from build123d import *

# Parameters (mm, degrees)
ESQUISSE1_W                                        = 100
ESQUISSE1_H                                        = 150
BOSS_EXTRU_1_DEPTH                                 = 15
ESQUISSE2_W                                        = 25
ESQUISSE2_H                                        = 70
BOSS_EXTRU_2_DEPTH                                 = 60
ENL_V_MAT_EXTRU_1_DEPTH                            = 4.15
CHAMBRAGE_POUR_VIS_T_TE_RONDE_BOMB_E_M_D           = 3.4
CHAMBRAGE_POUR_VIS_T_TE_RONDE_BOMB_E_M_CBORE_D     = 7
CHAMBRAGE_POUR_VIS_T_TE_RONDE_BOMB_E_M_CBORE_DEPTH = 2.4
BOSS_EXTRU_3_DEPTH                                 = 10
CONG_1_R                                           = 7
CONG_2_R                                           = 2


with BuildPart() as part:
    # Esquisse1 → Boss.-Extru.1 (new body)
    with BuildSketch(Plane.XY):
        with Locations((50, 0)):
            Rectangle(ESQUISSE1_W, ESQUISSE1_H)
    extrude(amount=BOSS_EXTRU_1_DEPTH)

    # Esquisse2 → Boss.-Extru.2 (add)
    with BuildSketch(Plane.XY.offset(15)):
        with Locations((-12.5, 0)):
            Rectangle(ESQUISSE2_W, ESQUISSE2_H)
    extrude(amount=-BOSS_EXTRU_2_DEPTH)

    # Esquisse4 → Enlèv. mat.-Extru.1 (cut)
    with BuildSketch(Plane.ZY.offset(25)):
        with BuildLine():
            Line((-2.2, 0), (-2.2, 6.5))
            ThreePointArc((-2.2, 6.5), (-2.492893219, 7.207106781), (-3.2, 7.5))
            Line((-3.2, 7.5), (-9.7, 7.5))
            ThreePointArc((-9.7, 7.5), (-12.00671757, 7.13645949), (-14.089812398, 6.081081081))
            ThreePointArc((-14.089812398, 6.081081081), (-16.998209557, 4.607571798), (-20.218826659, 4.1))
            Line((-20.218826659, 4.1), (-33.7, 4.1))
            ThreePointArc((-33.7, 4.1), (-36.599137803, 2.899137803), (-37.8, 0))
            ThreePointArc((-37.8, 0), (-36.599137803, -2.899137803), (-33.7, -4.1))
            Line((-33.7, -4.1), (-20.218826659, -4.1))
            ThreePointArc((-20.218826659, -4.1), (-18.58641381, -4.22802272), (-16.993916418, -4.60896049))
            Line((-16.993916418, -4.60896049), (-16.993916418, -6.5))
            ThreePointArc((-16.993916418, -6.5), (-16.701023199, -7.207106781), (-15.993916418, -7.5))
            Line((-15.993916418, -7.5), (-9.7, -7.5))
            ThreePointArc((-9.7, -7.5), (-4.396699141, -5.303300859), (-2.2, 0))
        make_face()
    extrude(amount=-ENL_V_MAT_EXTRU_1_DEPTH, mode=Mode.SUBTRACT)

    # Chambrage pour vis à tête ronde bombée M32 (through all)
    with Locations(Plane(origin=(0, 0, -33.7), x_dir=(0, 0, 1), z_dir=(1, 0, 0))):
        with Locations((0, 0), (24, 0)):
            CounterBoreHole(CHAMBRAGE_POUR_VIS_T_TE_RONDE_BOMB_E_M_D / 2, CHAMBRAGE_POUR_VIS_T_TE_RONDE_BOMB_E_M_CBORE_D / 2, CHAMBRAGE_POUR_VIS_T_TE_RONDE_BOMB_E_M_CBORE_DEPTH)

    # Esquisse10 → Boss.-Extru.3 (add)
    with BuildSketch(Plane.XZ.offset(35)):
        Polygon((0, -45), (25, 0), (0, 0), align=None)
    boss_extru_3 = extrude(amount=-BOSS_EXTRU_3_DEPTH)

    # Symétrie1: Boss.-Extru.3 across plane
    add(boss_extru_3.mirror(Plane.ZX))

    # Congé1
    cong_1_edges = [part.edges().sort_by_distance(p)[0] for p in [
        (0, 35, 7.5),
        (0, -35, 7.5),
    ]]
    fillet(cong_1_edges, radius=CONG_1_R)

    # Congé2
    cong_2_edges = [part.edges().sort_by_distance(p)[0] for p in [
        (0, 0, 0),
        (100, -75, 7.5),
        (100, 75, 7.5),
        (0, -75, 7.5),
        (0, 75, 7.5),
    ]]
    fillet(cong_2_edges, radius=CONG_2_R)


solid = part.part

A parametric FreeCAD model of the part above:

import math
import FreeCAD as App
import Part
import Sketcher


def edges_at(feature, points):
    """Names of the edges that pass closest to the given points."""
    edges = feature.Shape.Edges
    near = lambda p: min(range(len(edges)), key=lambda i: edges[i].distToShape(Part.Vertex(*p))[0])
    return sorted({f"Edge{near(p) + 1}" for p in points})

doc = App.newDocument("Part")
body = doc.addObject("PartDesign::Body", "Body")

# Sketch on XY plane
sketch1 = body.newObject("Sketcher::SketchObject", "Sketch")
sketch1.AttachmentSupport = (doc.getObject("XY_Plane"), [""])
sketch1.MapMode = "FlatFace"
sketch1.addGeometry([
    Part.LineSegment(App.Vector(0, 75, 0), App.Vector(0, -75, 0)),
    Part.LineSegment(App.Vector(0, -75, 0), App.Vector(100, -75, 0)),
    Part.LineSegment(App.Vector(100, -75, 0), App.Vector(100, 75, 0)),
    Part.LineSegment(App.Vector(100, 75, 0), App.Vector(0, 75, 0)),
], False)
sketch1.addConstraint([
    Sketcher.Constraint("Coincident", 0, 2, 1, 1),
    Sketcher.Constraint("Coincident", 1, 2, 2, 1),
    Sketcher.Constraint("Coincident", 2, 2, 3, 1),
    Sketcher.Constraint("Coincident", 3, 2, 0, 1),
    Sketcher.Constraint("Vertical", 0),
    Sketcher.Constraint("Horizontal", 1),
    Sketcher.Constraint("Vertical", 2),
    Sketcher.Constraint("Horizontal", 3),
    Sketcher.Constraint("Symmetric", 0, 2, 3, 2, -1, 1),
    Sketcher.Constraint("DistanceX", 1, 1, 1, 2, 100.0),
    Sketcher.Constraint("DistanceY", 0, 2, 0, 1, 150.0),
])
pad1 = body.newObject("PartDesign::Pad", "Pad")
pad1.Profile = sketch1
pad1.Length = 15

# Sketch on XY plane
sketch2 = body.newObject("Sketcher::SketchObject", "Sketch001")
sketch2.AttachmentSupport = (doc.getObject("XY_Plane"), [""])
sketch2.MapMode = "FlatFace"
sketch2.AttachmentOffset = App.Placement(App.Vector(0, 0, 15), App.Rotation())
sketch2.addGeometry([
    Part.LineSegment(App.Vector(-25, 35, 0), App.Vector(-25, -35, 0)),
    Part.LineSegment(App.Vector(-25, -35, 0), App.Vector(0, -35, 0)),
    Part.LineSegment(App.Vector(0, -35, 0), App.Vector(0, 35, 0)),
    Part.LineSegment(App.Vector(0, 35, 0), App.Vector(-25, 35, 0)),
], False)
sketch2.addConstraint([
    Sketcher.Constraint("Coincident", 0, 2, 1, 1),
    Sketcher.Constraint("Coincident", 1, 2, 2, 1),
    Sketcher.Constraint("Coincident", 2, 2, 3, 1),
    Sketcher.Constraint("Coincident", 3, 2, 0, 1),
    Sketcher.Constraint("Vertical", 0),
    Sketcher.Constraint("Horizontal", 1),
    Sketcher.Constraint("Vertical", 2),
    Sketcher.Constraint("Horizontal", 3),
    Sketcher.Constraint("Symmetric", 1, 2, 2, 2, -1, 1),
    Sketcher.Constraint("DistanceX", 1, 1, 1, 2, 25.0),
    Sketcher.Constraint("DistanceY", 0, 2, 0, 1, 70.0),
])
pad2 = body.newObject("PartDesign::Pad", "Pad001")
pad2.Profile = sketch2
pad2.Length = 60
pad2.Reversed = True

# Sketch on YZ plane
sketch3 = body.newObject("Sketcher::SketchObject", "Sketch002")
sketch3.AttachmentSupport = (doc.getObject("YZ_Plane"), [""])
sketch3.MapMode = "FlatFace"
sketch3.AttachmentOffset = App.Placement(App.Vector(0, 0, -25), App.Rotation())
sketch3.addGeometry([
    Part.LineSegment(App.Vector(0, -2.2, 0), App.Vector(6.5, -2.2, 0)),  # 0
    Part.ArcOfCircle(Part.Circle(App.Vector(6.5, -3.2, 0), App.Vector(0, 0, 1), 1), math.radians(0), math.radians(90)),  # 1
    Part.LineSegment(App.Vector(7.5, -3.2, 0), App.Vector(7.5, -9.7, 0)),  # 2
    Part.ArcOfCircle(Part.Circle(App.Vector(0, -9.7, 0), App.Vector(0, 0, 1), 7.5), math.radians(-35.824774), math.radians(0)),  # 3
    Part.ArcOfCircle(Part.Circle(App.Vector(14.571429, -20.218827, 0), App.Vector(0, 0, 1), 10.471429), math.radians(144.175226), math.radians(180)),  # 4
    Part.LineSegment(App.Vector(4.1, -20.218827, 0), App.Vector(4.1, -33.7, 0)),  # 5
    Part.ArcOfCircle(Part.Circle(App.Vector(0, -33.7, 0), App.Vector(0, 0, 1), 4.1), math.radians(-90), math.radians(0)),  # 6
    Part.ArcOfCircle(Part.Circle(App.Vector(0, -33.7, 0), App.Vector(0, 0, 1), 4.1), math.radians(180), math.radians(270)),  # 7
    Part.LineSegment(App.Vector(-4.1, -33.7, 0), App.Vector(-4.1, -20.218827, 0)),  # 8
    Part.ArcOfCircle(Part.Circle(App.Vector(-14.571429, -20.218827, 0), App.Vector(0, 0, 1), 10.471429), math.radians(0), math.radians(17.937076)),  # 9
    Part.LineSegment(App.Vector(-4.60896, -16.993916, 0), App.Vector(-6.5, -16.993916, 0)),  # 10
    Part.ArcOfCircle(Part.Circle(App.Vector(-6.5, -15.993916, 0), App.Vector(0, 0, 1), 1), math.radians(-180), math.radians(-90)),  # 11
    Part.LineSegment(App.Vector(-7.5, -15.993916, 0), App.Vector(-7.5, -9.7, 0)),  # 12
    Part.ArcOfCircle(Part.Circle(App.Vector(0, -9.7, 0), App.Vector(0, 0, 1), 7.5), math.radians(90), math.radians(180)),  # 13
], False)
sketch3.addConstraint([
    Sketcher.Constraint("Tangent", 0, 2, 1, 2),
    Sketcher.Constraint("Tangent", 1, 1, 2, 1),
    Sketcher.Constraint("Tangent", 2, 2, 3, 2),
    Sketcher.Constraint("Tangent", 3, 1, 4, 1),
    Sketcher.Constraint("Tangent", 4, 2, 5, 1),
    Sketcher.Constraint("Tangent", 5, 2, 6, 2),
    Sketcher.Constraint("Tangent", 6, 1, 7, 2),
    Sketcher.Constraint("Tangent", 7, 1, 8, 1),
    Sketcher.Constraint("Tangent", 8, 2, 9, 1),
    Sketcher.Constraint("Coincident", 9, 2, 10, 1),
    Sketcher.Constraint("Tangent", 10, 2, 11, 2),
    Sketcher.Constraint("Tangent", 11, 1, 12, 1),
    Sketcher.Constraint("Tangent", 12, 2, 13, 2),
    Sketcher.Constraint("Tangent", 13, 1, 0, 1),
    Sketcher.Constraint("Horizontal", 0),
    Sketcher.Constraint("Vertical", 2),
    Sketcher.Constraint("Vertical", 5),
    Sketcher.Constraint("Vertical", 8),
    Sketcher.Constraint("Horizontal", 10),
    Sketcher.Constraint("Vertical", 12),
    Sketcher.Constraint("Coincident", 13, 3, 3, 3),
    Sketcher.Constraint("Equal", 6, 7),
    Sketcher.Constraint("Equal", 4, 9),
    Sketcher.Constraint("Equal", 1, 11),
    Sketcher.Constraint("Equal", 3, 13),
    Sketcher.Constraint("Symmetric", 4, 3, 9, 3, -2),
    Sketcher.Constraint("PointOnObject", 3, 3, -2),
    Sketcher.Constraint("PointOnObject", 6, 1, -2),
    Sketcher.Constraint("Radius", 1, 1.0),
    Sketcher.Constraint("Radius", 3, 7.5),
    Sketcher.Constraint("Radius", 6, 4.1),
    Sketcher.Constraint("DistanceY", 6, 3, 3, 3, 24.0),
    Sketcher.Constraint("DistanceY", 1, 3, -1, 1, 3.2),
    Sketcher.Constraint("Radius", 4, 10.471429),
    Sketcher.Constraint("DistanceX", 10, 2, 10, 1, 1.89104),
])
pocket1 = body.newObject("PartDesign::Pocket", "Pocket")
pocket1.Profile = sketch3
pocket1.Length = 4.15
pocket1.Reversed = True

# Sketch on YZ plane
sketch4 = body.newObject("Sketcher::SketchObject", "Sketch003")
sketch4.AttachmentSupport = (doc.getObject("YZ_Plane"), [""])
sketch4.MapMode = "FlatFace"
sketch4.addGeometry([
    Part.Circle(App.Vector(0, -33.7, 0), App.Vector(0, 0, 1), 1.7),
    Part.Circle(App.Vector(0, -9.7, 0), App.Vector(0, 0, 1), 1.7),
], False)
sketch4.addConstraint([
    Sketcher.Constraint("Equal", 0, 1),
    Sketcher.Constraint("PointOnObject", 0, 3, -2),
    Sketcher.Constraint("PointOnObject", 1, 3, -2),
    Sketcher.Constraint("Diameter", 0, 3.4),
    Sketcher.Constraint("DistanceY", 0, 3, 1, 3, 24.0),
    Sketcher.Constraint("DistanceY", 0, 3, -1, 1, 33.7),
])
doc.recompute()
hole = body.newObject("PartDesign::Hole", "Hole")
hole.Profile = sketch4
hole.ThreadType = "None"
hole.Diameter = 3.4
hole.DepthType = "ThroughAll"
hole.HoleCutType = "Counterbore"
hole.HoleCutDiameter = 7
hole.HoleCutDepth = 2.4

# Sketch on XZ plane
sketch5 = body.newObject("Sketcher::SketchObject", "Sketch004")
sketch5.AttachmentSupport = (doc.getObject("XZ_Plane"), [""])
sketch5.MapMode = "FlatFace"
sketch5.AttachmentOffset = App.Placement(App.Vector(0, 0, 35), App.Rotation())
sketch5.addGeometry([
    Part.LineSegment(App.Vector(0, -45, 0), App.Vector(25, 0, 0)),
    Part.LineSegment(App.Vector(25, 0, 0), App.Vector(0, 0, 0)),
    Part.LineSegment(App.Vector(0, 0, 0), App.Vector(0, -45, 0)),
], False)
sketch5.addConstraint([
    Sketcher.Constraint("Coincident", 0, 2, 1, 1),
    Sketcher.Constraint("Coincident", 1, 2, 2, 1),
    Sketcher.Constraint("Coincident", 2, 2, 0, 1),
    Sketcher.Constraint("Horizontal", 1),
    Sketcher.Constraint("Vertical", 2),
    Sketcher.Constraint("Coincident", 1, 2, -1, 1),
    Sketcher.Constraint("DistanceX", 1, 2, 1, 1, 25.0),
    Sketcher.Constraint("DistanceY", 2, 2, 2, 1, 45.0),
])
pad3 = body.newObject("PartDesign::Pad", "Pad002")
pad3.Profile = sketch5
pad3.Length = 10
pad3.Reversed = True
doc.recompute()

mirrored = body.newObject("PartDesign::Mirrored", "Mirrored")
mirrored.Originals = [pad3]
mirrored.MirrorPlane = (doc.getObject("XZ_Plane"), [""])
body.Tip = mirrored
doc.recompute()

fillet = body.newObject("PartDesign::Fillet", "Fillet")
fillet.Base = (mirrored, edges_at(mirrored, [(0, 35, 7.5), (0, -35, 7.5)]))
fillet.Radius = 7
doc.recompute()

fillet2 = body.newObject("PartDesign::Fillet", "Fillet001")
fillet2.Base = (fillet, edges_at(fillet, [
    (0, 0, 0),
    (100, -75, 7.5),
    (100, 75, 7.5),
    (0, -75, 7.5),
    (0, 75, 7.5),
]))
fillet2.Radius = 2

doc.recompute()
